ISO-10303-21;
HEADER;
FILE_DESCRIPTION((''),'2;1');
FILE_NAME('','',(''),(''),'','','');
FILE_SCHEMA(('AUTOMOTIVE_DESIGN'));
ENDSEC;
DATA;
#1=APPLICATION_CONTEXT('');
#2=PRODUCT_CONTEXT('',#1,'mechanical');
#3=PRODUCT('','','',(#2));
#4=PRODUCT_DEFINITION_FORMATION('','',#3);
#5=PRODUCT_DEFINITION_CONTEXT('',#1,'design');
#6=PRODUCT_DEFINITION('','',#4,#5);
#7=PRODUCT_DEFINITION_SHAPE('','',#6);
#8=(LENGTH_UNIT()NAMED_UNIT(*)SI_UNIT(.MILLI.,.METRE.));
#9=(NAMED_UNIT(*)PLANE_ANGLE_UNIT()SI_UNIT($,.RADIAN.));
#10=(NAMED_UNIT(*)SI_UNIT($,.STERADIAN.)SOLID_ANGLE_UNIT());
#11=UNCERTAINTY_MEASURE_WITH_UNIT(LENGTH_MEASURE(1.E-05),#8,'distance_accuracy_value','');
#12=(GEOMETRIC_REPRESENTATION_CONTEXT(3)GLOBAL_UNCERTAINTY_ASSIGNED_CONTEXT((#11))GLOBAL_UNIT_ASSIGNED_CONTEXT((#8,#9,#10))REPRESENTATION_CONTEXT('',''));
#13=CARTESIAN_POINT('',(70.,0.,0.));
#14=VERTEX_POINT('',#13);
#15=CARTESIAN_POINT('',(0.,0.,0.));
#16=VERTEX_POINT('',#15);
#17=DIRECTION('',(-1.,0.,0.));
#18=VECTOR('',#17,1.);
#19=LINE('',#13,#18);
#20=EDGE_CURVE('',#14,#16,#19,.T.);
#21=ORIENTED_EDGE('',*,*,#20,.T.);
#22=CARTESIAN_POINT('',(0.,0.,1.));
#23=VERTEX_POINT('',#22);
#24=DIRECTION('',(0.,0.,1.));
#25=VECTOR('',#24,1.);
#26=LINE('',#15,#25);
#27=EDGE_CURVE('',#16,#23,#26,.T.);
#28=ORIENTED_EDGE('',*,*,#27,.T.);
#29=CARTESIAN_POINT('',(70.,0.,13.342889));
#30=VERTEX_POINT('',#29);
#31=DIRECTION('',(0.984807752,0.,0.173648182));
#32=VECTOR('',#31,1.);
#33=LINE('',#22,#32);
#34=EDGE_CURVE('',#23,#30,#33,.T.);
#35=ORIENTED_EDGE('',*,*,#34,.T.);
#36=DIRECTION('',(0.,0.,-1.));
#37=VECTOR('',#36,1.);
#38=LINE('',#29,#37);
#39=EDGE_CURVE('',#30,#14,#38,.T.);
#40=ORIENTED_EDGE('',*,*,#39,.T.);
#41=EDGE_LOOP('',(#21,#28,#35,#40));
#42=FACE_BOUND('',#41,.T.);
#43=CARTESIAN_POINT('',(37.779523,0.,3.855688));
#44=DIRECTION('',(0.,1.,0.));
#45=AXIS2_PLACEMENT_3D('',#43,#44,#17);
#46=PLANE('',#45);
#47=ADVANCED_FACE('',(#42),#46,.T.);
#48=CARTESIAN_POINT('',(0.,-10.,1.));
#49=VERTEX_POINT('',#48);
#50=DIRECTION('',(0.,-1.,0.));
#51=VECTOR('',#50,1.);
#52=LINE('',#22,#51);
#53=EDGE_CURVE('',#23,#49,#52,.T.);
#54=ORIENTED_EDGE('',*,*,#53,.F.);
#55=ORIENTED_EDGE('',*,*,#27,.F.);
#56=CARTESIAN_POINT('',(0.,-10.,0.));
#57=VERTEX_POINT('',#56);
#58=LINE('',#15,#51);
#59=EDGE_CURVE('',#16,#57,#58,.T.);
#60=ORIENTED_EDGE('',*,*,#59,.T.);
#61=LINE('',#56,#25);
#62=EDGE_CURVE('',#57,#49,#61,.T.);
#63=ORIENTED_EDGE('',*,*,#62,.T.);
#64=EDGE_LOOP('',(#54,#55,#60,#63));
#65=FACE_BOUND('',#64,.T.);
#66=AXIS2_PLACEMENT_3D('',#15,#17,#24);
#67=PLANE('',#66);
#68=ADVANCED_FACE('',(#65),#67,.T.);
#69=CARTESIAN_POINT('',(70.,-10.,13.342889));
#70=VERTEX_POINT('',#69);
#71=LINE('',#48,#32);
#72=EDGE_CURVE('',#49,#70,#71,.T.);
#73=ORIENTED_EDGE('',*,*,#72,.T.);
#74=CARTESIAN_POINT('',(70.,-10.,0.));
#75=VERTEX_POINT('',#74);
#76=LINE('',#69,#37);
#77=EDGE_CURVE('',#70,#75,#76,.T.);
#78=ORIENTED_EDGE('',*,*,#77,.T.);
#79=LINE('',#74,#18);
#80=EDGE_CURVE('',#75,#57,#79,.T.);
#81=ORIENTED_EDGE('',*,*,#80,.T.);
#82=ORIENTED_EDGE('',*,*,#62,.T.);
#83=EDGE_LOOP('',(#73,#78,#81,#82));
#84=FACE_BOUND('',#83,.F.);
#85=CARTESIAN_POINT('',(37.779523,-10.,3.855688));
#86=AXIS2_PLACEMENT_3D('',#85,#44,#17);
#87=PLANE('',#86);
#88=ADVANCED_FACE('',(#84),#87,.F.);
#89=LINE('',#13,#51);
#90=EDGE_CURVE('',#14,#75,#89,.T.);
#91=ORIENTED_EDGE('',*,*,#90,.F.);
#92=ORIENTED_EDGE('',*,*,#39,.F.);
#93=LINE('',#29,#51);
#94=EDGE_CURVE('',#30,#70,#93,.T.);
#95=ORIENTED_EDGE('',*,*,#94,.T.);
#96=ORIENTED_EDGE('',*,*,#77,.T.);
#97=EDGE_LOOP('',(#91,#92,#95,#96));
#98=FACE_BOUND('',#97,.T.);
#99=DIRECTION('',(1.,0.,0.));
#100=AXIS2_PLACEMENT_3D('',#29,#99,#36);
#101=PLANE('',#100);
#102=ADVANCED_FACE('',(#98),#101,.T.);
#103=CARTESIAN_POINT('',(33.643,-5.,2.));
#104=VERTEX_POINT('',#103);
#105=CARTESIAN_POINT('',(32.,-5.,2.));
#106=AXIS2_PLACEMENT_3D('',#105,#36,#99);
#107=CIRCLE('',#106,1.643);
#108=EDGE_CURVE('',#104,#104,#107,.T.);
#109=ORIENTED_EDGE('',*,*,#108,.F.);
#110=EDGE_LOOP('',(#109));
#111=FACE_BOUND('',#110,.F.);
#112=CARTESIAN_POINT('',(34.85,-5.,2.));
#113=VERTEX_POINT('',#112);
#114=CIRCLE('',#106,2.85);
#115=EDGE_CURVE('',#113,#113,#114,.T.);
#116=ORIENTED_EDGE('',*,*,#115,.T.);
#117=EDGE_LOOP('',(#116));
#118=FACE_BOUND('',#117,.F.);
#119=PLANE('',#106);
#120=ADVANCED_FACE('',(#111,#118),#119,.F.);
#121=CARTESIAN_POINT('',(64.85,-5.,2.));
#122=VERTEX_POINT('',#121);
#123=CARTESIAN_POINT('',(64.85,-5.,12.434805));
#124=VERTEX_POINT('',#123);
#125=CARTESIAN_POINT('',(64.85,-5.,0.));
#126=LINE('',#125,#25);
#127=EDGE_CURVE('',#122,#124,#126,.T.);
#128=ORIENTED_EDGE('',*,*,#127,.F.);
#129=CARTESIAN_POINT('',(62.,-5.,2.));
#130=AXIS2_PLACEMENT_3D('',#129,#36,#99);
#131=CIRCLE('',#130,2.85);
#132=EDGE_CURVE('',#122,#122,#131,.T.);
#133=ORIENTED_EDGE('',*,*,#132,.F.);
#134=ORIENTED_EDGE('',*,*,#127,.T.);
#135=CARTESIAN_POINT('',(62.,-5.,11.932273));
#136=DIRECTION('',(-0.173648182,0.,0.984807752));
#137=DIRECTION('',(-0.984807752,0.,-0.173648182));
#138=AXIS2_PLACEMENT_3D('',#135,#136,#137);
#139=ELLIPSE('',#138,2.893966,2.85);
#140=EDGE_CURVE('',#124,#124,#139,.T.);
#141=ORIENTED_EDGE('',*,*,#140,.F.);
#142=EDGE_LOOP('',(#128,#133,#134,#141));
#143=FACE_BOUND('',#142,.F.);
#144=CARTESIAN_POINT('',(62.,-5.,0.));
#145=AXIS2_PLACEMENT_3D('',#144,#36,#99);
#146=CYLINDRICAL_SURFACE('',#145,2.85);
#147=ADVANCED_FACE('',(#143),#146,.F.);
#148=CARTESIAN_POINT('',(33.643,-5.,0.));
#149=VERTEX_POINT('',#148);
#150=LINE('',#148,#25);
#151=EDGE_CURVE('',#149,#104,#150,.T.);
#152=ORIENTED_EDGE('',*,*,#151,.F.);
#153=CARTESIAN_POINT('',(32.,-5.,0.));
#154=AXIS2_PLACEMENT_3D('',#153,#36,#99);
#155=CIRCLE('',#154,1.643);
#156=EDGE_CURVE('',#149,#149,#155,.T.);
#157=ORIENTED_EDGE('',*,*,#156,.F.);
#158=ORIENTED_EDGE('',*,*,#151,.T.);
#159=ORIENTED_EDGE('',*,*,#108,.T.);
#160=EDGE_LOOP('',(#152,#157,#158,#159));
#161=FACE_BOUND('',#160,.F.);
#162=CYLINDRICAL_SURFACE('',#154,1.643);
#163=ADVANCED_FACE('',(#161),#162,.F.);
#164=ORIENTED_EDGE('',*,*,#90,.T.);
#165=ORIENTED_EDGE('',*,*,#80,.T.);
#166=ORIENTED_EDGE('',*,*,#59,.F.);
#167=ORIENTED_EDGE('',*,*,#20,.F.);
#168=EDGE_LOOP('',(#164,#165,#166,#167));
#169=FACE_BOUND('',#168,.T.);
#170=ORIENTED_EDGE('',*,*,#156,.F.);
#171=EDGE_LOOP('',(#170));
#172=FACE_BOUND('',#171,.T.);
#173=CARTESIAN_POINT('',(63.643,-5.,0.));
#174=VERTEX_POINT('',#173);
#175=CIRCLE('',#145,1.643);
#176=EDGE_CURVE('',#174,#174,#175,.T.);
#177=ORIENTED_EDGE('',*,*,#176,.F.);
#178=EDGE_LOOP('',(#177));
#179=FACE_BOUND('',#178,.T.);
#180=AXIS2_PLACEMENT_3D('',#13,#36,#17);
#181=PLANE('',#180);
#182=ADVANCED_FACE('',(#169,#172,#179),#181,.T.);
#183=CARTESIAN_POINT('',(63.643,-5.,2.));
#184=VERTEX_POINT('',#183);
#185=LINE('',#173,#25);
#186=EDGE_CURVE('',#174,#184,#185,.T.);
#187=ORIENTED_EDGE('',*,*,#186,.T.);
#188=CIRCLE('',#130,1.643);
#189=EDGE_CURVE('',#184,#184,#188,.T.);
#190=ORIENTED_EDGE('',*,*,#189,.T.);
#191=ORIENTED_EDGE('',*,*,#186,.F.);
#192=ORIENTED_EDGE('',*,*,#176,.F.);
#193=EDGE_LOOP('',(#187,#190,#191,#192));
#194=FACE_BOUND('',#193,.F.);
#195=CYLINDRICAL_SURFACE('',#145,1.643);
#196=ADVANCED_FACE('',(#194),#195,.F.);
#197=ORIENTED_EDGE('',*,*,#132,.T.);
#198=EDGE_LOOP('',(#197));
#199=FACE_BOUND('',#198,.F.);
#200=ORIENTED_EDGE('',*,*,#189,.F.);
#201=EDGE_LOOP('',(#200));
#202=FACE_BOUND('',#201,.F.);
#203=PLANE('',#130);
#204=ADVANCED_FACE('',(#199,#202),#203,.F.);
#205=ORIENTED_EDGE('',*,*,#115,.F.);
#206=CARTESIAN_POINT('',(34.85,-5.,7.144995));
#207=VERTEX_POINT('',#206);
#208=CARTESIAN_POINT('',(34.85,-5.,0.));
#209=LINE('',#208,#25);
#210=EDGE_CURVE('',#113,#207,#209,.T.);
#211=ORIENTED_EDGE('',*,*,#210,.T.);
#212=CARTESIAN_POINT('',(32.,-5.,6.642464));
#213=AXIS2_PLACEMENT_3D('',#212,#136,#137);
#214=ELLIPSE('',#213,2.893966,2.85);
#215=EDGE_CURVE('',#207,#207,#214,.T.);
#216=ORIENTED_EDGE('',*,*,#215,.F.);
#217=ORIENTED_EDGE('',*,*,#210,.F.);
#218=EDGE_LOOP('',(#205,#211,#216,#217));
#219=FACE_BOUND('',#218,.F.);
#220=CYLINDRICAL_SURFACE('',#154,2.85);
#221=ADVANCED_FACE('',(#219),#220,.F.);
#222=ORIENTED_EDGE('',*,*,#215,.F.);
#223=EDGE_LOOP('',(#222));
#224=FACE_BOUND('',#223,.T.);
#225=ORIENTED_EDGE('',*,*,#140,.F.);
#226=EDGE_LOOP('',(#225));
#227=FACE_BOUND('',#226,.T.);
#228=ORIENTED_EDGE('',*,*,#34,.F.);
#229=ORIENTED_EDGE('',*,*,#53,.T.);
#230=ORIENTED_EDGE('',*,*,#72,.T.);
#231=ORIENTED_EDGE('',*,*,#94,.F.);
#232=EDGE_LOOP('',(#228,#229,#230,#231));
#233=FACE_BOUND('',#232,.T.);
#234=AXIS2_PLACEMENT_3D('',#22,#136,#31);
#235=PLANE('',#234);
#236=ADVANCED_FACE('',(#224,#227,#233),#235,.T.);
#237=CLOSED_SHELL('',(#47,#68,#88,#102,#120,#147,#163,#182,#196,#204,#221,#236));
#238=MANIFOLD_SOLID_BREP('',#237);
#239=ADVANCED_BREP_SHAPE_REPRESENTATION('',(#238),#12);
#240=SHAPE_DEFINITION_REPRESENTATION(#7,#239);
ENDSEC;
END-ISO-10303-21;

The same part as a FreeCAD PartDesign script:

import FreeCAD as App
import Part
import Sketcher
Q = App.Units.Quantity


def add_polygon(sketch, points):
    """Adds a closed chain of lines whose ends are joined by coincident constraints."""
    first, n = sketch.GeometryCount, len(points)
    for a, b in zip(points, points[1:] + points[:1]):
        sketch.addGeometry(Part.LineSegment(App.Vector(*a, 0), App.Vector(*b, 0)), False)
    for i in range(n):
        sketch.addConstraint(Sketcher.Constraint("Coincident", first + i, 2, first + (i + 1) % n, 1))

doc = App.newDocument("Part")
params = doc.addObject("Spreadsheet::Sheet", "Params")
for row, (alias, value) in enumerate([
    ("sketch1_width", "70 mm"),
    ("sketch1_height", "1 mm"),
    ("pad1_length", "10 mm"),
    ("sketch2_diameter", "5.7 mm"),
    ("pocket1_length", "30 mm"),
    ("sketch3_diameter", "7 mm"),
    ("pad2_length", "2 mm"),
], start=1):
    params.set(f"A{row}", alias)
    params.set(f"B{row}", "=" + value)
    params.setAlias(f"B{row}", alias)

body = doc.addObject("PartDesign::Body", "Body")

# Sketch on XZ plane
sketch1 = body.newObject("Sketcher::SketchObject", "Sketch")
sketch1.AttachmentSupport = (doc.getObject("XZ_Plane"), [""])
sketch1.MapMode = "FlatFace"
add_polygon(sketch1, [(0, 1), (0, 0), (70, 0), (70, 13.3)])  # lines 0-3
sketch1.addConstraint([
    Sketcher.Constraint("Vertical", 0),
    Sketcher.Constraint("Horizontal", 1),
    Sketcher.Constraint("Vertical", 2),
    Sketcher.Constraint("Coincident", 0, 2, -1, 1),
    Sketcher.Constraint("DistanceX", 1, 1, 1, 2, 70.0),
    Sketcher.Constraint("DistanceY", 0, 2, 0, 1, 1.0),
    Sketcher.Constraint("Angle", 3, Q("-170 deg")),
])
sketch1.setExpression("Constraints[8]", "Params.sketch1_width")
sketch1.setExpression("Constraints[9]", "Params.sketch1_height")
pad1 = body.newObject("PartDesign::Pad", "Pad")
pad1.Profile = sketch1
pad1.setExpression("Length", "Params.pad1_length")

# Sketch on XY plane
sketch2 = body.newObject("Sketcher::SketchObject", "Sketch001")
sketch2.AttachmentSupport = (doc.getObject("XY_Plane"), [""])
sketch2.MapMode = "FlatFace"
sketch2.addGeometry([
    Part.Circle(App.Vector(32, -5, 0), App.Vector(0, 0, 1), 2.9),
    Part.Circle(App.Vector(62, -5, 0), App.Vector(0, 0, 1), 2.9),
], False)
sketch2.addConstraint([
    Sketcher.Constraint("Equal", 0, 1),
    Sketcher.Constraint("Horizontal", 0, 3, 1, 3),
    Sketcher.Constraint("Diameter", 0, 5.7),
    Sketcher.Constraint("DistanceX", -1, 1, 0, 3, 32.0),
    Sketcher.Constraint("DistanceY", 0, 3, -1, 1, 5.0),
    Sketcher.Constraint("DistanceX", -1, 1, 1, 3, 62.0),
])
sketch2.setExpression("Constraints[2]", "Params.sketch2_diameter")
pocket1 = body.newObject("PartDesign::Pocket", "Pocket")
pocket1.Profile = sketch2
pocket1.setExpression("Length", "Params.pocket1_length")
pocket1.Reversed = True

# Sketch on XY plane
sketch3 = body.newObject("Sketcher::SketchObject", "Sketch002")
sketch3.AttachmentSupport = (doc.getObject("XY_Plane"), [""])
sketch3.MapMode = "FlatFace"
sketch3.addGeometry([
    Part.Circle(App.Vector(32, -5, 0), App.Vector(0, 0, 1), 3.5),
    Part.Circle(App.Vector(32, -5, 0), App.Vector(0, 0, 1), 1.6),
    Part.Circle(App.Vector(62, -5, 0), App.Vector(0, 0, 1), 3.5),
    Part.Circle(App.Vector(62, -5, 0), App.Vector(0, 0, 1), 1.6),
], False)
sketch3.addConstraint([
    Sketcher.Constraint("Coincident", 1, 3, 0, 3),
    Sketcher.Constraint("Coincident", 3, 3, 2, 3),
    Sketcher.Constraint("Equal", 0, 2),
    Sketcher.Constraint("Equal", 1, 3),
    Sketcher.Constraint("Horizontal", 1, 3, 2, 3),
    Sketcher.Constraint("Diameter", 0, 7.0),
    Sketcher.Constraint("Diameter", 1, 3.286),
    Sketcher.Constraint("DistanceX", -1, 1, 0, 3, 32.0),
    Sketcher.Constraint("DistanceY", 0, 3, -1, 1, 5.0),
    Sketcher.Constraint("DistanceX", -1, 1, 2, 3, 62.0),
])
sketch3.setExpression("Constraints[5]", "Params.sketch3_diameter")
pad2 = body.newObject("PartDesign::Pad", "Pad001")
pad2.Profile = sketch3
pad2.setExpression("Length", "Params.pad2_length")

doc.recompute()
